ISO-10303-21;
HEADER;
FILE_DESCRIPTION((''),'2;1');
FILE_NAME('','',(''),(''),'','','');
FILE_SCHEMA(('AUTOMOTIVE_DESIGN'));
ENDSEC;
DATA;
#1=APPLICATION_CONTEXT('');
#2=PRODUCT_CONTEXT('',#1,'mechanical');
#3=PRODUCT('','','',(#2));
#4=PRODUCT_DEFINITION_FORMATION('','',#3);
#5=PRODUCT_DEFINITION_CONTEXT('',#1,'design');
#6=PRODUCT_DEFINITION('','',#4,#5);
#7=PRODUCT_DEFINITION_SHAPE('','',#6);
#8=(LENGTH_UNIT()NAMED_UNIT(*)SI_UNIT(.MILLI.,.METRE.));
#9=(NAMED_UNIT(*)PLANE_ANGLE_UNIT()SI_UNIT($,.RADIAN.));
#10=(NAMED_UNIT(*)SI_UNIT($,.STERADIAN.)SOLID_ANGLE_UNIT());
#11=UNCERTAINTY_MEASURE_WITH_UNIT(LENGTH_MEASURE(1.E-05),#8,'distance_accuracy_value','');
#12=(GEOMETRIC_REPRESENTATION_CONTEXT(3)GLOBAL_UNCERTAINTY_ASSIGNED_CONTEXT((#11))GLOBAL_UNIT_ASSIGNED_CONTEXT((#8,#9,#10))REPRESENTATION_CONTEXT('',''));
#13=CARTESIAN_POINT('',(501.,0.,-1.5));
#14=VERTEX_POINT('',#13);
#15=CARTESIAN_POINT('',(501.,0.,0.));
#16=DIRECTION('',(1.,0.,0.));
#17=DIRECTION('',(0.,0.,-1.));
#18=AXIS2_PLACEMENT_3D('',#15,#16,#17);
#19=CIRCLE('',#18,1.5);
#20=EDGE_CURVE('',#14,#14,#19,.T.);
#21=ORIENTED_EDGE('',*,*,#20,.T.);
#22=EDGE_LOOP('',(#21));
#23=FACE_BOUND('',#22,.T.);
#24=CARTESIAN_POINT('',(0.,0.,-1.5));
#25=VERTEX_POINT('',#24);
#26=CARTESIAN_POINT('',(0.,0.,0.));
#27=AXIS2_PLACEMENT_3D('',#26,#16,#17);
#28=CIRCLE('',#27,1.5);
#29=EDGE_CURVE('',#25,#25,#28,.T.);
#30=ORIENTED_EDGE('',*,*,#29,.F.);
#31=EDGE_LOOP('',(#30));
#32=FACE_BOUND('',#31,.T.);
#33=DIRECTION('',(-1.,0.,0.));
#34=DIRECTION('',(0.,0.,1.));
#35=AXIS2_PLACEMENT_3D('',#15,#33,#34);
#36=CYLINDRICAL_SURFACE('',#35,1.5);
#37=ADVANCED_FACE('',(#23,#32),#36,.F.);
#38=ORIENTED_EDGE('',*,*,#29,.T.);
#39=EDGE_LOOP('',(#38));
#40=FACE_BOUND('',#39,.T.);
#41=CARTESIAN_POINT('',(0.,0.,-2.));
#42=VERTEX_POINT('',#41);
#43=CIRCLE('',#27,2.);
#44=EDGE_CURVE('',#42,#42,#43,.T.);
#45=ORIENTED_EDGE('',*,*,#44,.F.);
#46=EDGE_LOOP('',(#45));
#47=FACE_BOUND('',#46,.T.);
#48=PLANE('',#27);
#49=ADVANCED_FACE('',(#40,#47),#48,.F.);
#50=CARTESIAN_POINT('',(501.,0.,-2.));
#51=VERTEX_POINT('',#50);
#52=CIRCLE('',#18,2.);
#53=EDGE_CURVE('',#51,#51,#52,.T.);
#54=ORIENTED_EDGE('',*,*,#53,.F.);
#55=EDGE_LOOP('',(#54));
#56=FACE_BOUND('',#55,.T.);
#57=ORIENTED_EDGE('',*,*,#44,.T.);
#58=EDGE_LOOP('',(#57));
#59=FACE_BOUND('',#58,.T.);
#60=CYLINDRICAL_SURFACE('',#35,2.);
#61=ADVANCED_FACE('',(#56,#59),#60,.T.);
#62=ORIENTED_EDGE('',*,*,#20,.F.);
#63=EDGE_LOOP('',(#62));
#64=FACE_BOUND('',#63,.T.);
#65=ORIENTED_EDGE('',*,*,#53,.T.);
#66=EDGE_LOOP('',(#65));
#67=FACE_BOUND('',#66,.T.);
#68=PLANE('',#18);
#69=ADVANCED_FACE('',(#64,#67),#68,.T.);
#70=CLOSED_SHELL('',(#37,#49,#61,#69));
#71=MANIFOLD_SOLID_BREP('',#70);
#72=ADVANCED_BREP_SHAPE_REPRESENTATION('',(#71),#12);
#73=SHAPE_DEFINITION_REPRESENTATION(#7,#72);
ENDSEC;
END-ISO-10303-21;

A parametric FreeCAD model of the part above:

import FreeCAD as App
import Part
import Sketcher

V = App.Vector

doc = App.newDocument("Part")
body = doc.addObject("PartDesign::Body", "Body")

# Sketch on YZ plane
sketch1 = doc.addObject("Sketcher::SketchObject", "Sketch")
body.addObject(sketch1)
sketch1.AttachmentSupport = (doc.YZ_Plane, [""])
sketch1.MapMode = "FlatFace"
sketch1.addGeometry([
    Part.Circle(V(0, 0, 0), V(0, 0, 1), 2),
    Part.Circle(V(0, 0, 0), V(0, 0, 1), 1.5),
], False)
sketch1.addConstraint([
    Sketcher.Constraint("Coincident", 0, 3, -1, 1),
    Sketcher.Constraint("Coincident", 1, 3, -1, 1),
    Sketcher.Constraint("Diameter", 0, 4.0),
    Sketcher.Constraint("Diameter", 1, 3.0),
])
pad1 = doc.addObject("PartDesign::Pad", "Pad")
body.addObject(pad1)
pad1.Profile = sketch1
pad1.Length = 501

doc.recompute()
